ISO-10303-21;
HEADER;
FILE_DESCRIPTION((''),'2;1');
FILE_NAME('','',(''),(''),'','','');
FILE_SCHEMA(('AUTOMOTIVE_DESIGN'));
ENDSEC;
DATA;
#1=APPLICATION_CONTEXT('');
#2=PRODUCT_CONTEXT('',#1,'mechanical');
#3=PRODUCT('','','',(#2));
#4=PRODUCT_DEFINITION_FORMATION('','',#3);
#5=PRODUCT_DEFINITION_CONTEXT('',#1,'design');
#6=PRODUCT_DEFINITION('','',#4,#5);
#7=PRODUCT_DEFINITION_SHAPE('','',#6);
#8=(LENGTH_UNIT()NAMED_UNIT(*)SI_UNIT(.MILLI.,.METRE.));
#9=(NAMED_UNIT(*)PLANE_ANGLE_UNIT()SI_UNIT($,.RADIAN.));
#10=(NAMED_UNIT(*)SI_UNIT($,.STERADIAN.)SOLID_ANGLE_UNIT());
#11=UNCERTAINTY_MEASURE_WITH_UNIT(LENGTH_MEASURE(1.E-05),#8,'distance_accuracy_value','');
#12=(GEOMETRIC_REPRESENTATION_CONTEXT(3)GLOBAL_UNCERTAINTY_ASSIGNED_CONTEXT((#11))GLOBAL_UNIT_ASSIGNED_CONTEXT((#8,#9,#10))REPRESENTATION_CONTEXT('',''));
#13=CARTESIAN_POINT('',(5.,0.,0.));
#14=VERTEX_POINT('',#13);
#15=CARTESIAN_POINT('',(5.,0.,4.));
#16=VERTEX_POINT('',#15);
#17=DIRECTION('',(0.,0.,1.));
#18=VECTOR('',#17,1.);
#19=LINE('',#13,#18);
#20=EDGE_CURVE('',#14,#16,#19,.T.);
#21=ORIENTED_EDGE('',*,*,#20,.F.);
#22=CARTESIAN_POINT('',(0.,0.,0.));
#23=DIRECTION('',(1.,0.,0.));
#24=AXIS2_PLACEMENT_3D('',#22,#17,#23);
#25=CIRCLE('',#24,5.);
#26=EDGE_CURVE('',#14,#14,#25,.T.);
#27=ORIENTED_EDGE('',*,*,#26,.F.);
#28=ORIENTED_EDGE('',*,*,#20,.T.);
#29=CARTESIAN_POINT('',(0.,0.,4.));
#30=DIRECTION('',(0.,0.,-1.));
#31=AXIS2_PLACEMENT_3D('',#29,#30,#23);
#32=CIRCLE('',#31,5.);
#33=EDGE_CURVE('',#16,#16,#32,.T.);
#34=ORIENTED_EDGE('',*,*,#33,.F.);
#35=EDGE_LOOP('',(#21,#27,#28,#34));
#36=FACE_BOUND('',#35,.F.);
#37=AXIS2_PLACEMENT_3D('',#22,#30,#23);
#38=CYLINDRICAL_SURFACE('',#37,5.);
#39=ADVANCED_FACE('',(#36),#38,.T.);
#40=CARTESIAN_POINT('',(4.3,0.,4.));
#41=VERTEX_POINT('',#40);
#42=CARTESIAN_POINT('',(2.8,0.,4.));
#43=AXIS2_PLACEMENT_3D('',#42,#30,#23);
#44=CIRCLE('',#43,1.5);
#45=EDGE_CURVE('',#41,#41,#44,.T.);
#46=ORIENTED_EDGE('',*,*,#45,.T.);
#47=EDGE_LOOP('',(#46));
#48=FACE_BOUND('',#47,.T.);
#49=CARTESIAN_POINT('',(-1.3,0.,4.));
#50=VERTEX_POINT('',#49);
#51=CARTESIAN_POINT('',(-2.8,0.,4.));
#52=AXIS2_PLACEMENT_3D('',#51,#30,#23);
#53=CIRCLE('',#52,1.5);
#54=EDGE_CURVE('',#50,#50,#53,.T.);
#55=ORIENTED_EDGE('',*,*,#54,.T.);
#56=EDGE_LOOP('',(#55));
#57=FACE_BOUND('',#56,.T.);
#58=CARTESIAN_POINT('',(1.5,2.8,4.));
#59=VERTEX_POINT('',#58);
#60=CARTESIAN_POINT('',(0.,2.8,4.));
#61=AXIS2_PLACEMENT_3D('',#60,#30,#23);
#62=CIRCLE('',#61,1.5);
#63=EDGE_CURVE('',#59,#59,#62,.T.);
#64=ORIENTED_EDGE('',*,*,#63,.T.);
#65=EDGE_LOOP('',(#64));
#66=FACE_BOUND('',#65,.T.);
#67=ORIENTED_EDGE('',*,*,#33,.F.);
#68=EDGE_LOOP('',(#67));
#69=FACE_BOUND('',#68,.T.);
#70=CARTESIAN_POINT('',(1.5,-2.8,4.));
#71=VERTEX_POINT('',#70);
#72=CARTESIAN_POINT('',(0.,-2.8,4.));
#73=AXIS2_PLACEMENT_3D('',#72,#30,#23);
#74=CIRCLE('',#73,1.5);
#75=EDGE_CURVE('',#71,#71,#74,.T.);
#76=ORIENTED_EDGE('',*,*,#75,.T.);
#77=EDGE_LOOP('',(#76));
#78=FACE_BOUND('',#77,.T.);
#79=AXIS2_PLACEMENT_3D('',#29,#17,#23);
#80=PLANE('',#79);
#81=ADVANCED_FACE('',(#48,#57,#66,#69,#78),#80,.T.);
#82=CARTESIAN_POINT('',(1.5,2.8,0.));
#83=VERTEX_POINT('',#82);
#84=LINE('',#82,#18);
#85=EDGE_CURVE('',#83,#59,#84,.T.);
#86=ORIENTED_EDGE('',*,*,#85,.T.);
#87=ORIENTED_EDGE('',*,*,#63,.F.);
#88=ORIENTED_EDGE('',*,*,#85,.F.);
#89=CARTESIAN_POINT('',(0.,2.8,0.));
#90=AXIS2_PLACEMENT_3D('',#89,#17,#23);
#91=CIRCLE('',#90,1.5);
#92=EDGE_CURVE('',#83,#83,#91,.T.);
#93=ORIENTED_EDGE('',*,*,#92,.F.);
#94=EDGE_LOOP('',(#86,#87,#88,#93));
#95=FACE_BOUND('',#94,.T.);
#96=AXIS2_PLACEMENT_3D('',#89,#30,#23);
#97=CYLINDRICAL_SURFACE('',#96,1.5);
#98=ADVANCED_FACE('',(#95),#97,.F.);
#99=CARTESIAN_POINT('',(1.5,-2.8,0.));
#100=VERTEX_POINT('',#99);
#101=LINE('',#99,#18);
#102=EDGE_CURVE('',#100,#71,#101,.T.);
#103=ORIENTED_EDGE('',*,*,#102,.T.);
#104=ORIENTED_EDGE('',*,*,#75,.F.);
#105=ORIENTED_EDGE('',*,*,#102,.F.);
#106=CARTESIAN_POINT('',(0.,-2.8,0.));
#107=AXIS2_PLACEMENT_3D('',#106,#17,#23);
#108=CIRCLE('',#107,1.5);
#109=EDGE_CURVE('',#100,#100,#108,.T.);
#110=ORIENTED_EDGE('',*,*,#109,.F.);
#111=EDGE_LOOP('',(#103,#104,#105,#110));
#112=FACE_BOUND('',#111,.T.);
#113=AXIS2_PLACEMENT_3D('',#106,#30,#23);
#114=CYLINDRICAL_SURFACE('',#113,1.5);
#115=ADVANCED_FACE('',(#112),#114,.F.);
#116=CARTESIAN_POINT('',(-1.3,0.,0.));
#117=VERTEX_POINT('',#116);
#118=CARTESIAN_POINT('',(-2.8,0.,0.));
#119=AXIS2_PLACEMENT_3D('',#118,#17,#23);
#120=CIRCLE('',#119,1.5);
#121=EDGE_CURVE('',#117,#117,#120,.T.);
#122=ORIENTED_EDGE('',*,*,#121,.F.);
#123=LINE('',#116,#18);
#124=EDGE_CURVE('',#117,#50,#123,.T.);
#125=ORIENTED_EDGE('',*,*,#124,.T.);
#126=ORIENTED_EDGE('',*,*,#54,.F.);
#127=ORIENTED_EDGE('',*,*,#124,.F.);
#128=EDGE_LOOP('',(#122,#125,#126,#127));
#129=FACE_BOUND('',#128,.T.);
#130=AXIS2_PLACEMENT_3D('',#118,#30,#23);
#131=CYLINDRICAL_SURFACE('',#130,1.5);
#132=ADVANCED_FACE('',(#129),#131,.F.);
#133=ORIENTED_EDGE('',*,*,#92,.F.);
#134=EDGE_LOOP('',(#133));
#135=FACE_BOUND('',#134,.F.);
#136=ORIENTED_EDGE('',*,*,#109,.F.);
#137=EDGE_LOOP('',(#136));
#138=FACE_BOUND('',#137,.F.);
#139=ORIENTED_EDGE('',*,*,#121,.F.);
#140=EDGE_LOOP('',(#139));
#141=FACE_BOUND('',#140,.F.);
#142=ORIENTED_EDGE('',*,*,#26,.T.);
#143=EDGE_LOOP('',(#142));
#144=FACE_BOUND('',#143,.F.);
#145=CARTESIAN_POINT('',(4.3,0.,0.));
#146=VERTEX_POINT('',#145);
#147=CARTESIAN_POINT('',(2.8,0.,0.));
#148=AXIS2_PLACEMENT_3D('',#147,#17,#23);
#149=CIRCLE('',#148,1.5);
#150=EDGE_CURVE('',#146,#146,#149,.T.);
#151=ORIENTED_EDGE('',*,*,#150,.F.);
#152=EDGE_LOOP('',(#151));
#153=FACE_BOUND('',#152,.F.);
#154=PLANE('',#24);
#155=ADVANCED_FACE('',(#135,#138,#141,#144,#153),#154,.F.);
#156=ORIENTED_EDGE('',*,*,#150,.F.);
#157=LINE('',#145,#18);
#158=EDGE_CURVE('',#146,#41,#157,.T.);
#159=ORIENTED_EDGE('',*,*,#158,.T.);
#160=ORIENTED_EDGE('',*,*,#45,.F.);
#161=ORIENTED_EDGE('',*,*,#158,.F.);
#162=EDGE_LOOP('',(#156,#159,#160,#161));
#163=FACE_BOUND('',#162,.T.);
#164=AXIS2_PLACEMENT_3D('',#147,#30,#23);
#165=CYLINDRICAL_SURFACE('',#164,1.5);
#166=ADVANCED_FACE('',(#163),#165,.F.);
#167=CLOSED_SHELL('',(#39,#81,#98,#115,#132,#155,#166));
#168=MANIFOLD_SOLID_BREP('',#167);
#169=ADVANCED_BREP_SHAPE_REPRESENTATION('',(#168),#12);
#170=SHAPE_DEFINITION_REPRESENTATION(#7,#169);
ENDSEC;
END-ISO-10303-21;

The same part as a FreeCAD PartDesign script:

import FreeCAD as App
import Part
import Sketcher
from FreeCAD import Vector
Q = App.Units.Quantity

doc = App.newDocument("Part")
body = doc.addObject("PartDesign::Body", "Body")

sketch1 = body.newObject("Sketcher::SketchObject", "Sketch")
sketch1.AttachmentSupport = (doc.getObject("XY_Plane"), [""])
sketch1.MapMode = "FlatFace"
sketch1.addGeometry([
    Part.Circle(Vector(0, 0, 0), Vector(0, 0, 1), 5),
    Part.Circle(Vector(2.8, 0, 0), Vector(0, 0, 1), 1.5),
    Part.Circle(Vector(0, 2.8, 0), Vector(0, 0, 1), 1.5),
    Part.Circle(Vector(0, -2.8, 0), Vector(0, 0, 1), 1.5),
    Part.Circle(Vector(-2.8, 0, 0), Vector(0, 0, 1), 1.5),
], False)
sketch1.addConstraint([
    Sketcher.Constraint("Coincident", 0, 3, -1, 1),
    Sketcher.Constraint("Equal", 1, 2),
    Sketcher.Constraint("Equal", 2, 3),
    Sketcher.Constraint("Equal", 3, 4),
    Sketcher.Constraint("Symmetric", 2, 3, 3, 3, -1, 1),
    Sketcher.Constraint("Symmetric", 1, 3, 4, 3, -1, 1),
    Sketcher.Constraint("PointOnObject", 1, 3, -1),
    Sketcher.Constraint("PointOnObject", 2, 3, -2),
    Sketcher.Constraint("Diameter", 0, Q("10 mm")),
    Sketcher.Constraint("Diameter", 1, Q("3 mm")),
    Sketcher.Constraint("DistanceY", 3, 3, 2, 3, Q("5.6 mm")),
    Sketcher.Constraint("DistanceX", 4, 3, 1, 3, Q("5.6 mm")),
])
pad1 = body.newObject("PartDesign::Pad", "Pad")
pad1.Profile = sketch1
pad1.Length = 4

doc.recompute()
